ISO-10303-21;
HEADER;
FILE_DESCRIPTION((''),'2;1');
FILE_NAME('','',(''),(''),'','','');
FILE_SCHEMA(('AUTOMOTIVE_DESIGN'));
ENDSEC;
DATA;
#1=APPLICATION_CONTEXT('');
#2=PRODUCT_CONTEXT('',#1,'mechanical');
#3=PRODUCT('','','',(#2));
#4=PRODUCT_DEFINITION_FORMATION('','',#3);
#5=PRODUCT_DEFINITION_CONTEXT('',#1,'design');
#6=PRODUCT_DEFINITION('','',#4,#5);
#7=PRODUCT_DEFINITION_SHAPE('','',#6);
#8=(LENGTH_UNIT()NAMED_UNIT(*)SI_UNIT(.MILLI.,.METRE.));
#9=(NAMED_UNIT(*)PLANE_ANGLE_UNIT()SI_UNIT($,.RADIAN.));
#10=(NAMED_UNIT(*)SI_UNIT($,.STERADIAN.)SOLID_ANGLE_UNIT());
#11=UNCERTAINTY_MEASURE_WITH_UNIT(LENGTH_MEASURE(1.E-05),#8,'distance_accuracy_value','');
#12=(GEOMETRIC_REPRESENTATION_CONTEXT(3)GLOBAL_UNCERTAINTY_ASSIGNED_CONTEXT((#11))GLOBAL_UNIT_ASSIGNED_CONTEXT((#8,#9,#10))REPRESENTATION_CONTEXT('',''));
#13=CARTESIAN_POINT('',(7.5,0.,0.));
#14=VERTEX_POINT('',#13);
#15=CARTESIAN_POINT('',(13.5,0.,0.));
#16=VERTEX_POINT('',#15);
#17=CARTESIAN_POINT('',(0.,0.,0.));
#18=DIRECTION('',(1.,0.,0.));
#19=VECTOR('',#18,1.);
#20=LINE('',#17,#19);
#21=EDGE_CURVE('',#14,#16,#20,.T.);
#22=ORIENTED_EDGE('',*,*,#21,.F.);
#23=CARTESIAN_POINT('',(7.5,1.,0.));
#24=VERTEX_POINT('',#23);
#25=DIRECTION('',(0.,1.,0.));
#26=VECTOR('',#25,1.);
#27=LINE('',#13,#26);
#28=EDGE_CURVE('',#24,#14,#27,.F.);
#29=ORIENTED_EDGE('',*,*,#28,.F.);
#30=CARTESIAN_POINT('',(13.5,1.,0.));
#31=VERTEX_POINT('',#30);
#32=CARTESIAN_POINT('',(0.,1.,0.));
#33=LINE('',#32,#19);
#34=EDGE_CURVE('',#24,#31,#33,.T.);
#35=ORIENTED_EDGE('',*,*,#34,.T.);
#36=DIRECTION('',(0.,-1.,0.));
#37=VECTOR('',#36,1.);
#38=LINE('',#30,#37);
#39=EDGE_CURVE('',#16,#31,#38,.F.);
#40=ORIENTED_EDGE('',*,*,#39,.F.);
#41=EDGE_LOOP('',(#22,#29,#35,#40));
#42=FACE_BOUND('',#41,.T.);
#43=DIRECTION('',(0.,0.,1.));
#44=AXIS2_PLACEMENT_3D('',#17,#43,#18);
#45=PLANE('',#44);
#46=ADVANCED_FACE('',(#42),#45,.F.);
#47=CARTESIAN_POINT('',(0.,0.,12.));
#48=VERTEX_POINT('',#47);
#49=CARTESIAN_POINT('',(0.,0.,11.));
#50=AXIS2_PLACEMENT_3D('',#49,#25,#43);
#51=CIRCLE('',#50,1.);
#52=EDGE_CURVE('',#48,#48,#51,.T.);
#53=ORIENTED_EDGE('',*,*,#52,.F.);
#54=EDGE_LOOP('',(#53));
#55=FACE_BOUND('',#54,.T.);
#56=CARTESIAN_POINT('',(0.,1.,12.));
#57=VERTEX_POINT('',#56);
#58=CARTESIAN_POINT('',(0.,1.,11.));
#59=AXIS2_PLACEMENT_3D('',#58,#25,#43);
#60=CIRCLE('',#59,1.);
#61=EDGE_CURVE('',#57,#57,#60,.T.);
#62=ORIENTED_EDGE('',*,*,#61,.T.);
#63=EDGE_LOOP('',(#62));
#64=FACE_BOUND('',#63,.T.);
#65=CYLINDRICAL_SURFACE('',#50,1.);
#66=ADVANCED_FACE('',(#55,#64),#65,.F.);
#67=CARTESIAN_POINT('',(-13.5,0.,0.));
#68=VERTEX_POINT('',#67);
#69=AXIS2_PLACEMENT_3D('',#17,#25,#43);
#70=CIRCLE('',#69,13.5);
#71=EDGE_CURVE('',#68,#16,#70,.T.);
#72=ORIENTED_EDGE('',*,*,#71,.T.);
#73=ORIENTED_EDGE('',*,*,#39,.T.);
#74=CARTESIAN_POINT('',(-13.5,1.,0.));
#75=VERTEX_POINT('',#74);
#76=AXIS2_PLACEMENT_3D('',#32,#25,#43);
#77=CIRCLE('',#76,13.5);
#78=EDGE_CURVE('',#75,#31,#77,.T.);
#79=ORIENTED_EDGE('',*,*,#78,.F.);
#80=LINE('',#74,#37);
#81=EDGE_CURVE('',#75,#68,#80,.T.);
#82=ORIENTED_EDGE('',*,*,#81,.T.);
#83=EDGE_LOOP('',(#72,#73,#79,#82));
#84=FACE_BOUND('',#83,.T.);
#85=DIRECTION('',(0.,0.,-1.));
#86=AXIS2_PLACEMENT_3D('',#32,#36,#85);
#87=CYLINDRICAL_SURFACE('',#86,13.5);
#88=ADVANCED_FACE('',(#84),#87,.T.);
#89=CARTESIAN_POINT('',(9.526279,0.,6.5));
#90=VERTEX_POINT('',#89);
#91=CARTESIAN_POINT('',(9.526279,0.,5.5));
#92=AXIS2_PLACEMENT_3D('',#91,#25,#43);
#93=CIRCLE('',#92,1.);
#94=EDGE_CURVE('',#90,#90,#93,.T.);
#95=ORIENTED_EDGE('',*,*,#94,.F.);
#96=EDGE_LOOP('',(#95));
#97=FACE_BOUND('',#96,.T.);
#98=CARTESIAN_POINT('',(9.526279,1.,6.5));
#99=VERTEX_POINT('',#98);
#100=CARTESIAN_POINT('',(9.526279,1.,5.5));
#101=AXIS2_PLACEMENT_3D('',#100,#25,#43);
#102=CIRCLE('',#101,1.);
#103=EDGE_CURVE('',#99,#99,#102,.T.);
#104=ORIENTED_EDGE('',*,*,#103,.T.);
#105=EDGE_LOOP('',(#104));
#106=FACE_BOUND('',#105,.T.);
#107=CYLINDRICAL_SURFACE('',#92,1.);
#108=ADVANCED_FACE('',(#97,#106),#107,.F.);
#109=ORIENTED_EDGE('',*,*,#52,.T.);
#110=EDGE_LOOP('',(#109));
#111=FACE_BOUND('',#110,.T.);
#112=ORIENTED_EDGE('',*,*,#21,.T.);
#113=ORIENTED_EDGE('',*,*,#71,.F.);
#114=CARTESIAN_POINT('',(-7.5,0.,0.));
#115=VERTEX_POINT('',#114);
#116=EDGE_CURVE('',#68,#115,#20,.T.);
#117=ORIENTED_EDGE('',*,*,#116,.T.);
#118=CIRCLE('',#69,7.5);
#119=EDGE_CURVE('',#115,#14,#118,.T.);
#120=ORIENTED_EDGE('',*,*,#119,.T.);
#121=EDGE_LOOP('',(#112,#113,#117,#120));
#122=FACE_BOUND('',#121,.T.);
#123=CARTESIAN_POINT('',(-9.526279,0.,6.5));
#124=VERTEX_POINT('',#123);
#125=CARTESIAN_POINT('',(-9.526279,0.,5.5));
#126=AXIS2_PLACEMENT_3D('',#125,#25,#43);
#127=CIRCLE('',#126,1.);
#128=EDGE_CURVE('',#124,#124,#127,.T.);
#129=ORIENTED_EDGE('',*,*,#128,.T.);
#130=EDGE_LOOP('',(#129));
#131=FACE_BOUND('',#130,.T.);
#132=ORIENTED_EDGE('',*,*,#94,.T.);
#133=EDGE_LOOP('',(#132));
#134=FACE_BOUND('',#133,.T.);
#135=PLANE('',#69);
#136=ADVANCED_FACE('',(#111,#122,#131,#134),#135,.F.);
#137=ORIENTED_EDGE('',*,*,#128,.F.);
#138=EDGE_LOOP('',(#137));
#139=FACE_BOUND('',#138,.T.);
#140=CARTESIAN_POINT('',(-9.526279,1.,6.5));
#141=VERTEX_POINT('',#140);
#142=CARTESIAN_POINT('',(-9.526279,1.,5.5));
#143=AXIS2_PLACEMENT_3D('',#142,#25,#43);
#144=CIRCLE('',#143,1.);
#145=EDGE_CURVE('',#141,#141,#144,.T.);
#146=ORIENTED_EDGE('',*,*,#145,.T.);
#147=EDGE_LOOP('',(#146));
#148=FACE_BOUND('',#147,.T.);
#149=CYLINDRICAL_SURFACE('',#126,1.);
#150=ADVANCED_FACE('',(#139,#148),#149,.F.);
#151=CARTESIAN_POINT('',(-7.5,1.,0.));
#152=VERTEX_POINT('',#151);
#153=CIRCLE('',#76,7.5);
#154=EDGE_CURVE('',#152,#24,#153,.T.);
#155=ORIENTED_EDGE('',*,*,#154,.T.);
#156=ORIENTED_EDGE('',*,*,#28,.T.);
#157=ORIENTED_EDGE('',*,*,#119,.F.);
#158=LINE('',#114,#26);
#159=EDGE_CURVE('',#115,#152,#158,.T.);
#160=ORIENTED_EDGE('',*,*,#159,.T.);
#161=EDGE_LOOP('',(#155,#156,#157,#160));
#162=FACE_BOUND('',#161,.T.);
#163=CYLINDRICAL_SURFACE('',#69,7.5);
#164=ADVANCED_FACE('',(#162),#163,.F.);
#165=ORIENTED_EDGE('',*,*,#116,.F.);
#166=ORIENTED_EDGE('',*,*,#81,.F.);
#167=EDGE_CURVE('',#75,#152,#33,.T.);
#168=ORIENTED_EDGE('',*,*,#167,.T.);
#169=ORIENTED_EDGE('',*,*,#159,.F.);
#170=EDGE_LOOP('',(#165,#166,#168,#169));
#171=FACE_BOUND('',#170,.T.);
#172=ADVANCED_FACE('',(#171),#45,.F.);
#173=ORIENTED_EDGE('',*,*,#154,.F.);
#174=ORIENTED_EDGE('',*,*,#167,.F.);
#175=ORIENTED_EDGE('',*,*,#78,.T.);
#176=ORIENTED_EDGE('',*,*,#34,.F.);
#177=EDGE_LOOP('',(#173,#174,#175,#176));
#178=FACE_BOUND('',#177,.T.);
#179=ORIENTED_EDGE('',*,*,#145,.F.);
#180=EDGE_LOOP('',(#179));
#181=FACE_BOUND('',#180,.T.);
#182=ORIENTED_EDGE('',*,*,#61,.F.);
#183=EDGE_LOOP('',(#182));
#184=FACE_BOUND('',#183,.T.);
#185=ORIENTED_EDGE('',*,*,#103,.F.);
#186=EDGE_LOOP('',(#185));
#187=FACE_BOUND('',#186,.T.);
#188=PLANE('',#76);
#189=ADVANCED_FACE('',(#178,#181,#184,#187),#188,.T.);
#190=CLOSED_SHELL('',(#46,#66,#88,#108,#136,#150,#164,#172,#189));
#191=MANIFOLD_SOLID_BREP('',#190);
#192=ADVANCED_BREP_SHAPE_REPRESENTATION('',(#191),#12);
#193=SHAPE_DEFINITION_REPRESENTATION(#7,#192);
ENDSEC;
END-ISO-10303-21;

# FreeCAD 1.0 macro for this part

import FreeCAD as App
import Part
import Sketcher
Q = App.Units.Quantity

doc = App.newDocument("Part")
body = doc.addObject("PartDesign::Body", "Body")

# Sketch on XZ plane
sketch1 = body.newObject("Sketcher::SketchObject", "Sketch")
sketch1.AttachmentSupport = (doc.getObject("XZ_Plane"), [""])
sketch1.MapMode = "FlatFace"
sketch1.addGeometry(Part.Circle(App.Vector(0, 0, 0), App.Vector(0, 0, 1), 13.5), False)
sketch1.addConstraint([
    Sketcher.Constraint("Coincident", 0, 3, -1, 1),
    Sketcher.Constraint("Diameter", 0, Q("27 mm")),
])
pad1 = body.newObject("PartDesign::Pad", "Pad")
pad1.Profile = sketch1
pad1.Length = 1
pad1.Reversed = True

# Sketch on XZ plane
sketch2 = body.newObject("Sketcher::SketchObject", "Sketch001")
sketch2.AttachmentSupport = (doc.getObject("XZ_Plane"), [""])
sketch2.MapMode = "FlatFace"
sketch2.AttachmentOffset = App.Placement(App.Vector(0, 0, -1), App.Rotation())
sketch2.addGeometry([
    Part.Circle(App.Vector(0, -11, 0), App.Vector(0, 0, 1), 1),  # 0
    Part.Circle(App.Vector(9.526279, -5.5, 0), App.Vector(0, 0, 1), 1),  # 1
    Part.Circle(App.Vector(9.526279, 5.5, 0), App.Vector(0, 0, 1), 1),  # 2
    Part.Circle(App.Vector(0, 11, 0), App.Vector(0, 0, 1), 1),  # 3
    Part.Circle(App.Vector(-9.526279, 5.5, 0), App.Vector(0, 0, 1), 1),  # 4
    Part.Circle(App.Vector(-9.526279, -5.5, 0), App.Vector(0, 0, 1), 1),  # 5
], False)
sketch2.addConstraint([
    Sketcher.Constraint("Equal", 0, 1),
    Sketcher.Constraint("Equal", 1, 2),
    Sketcher.Constraint("Equal", 2, 3),
    Sketcher.Constraint("Equal", 3, 4),
    Sketcher.Constraint("Equal", 4, 5),
    Sketcher.Constraint("Symmetric", 0, 3, 3, 3, -1, 1),
    Sketcher.Constraint("Symmetric", 1, 3, 4, 3, -1, 1),
    Sketcher.Constraint("Symmetric", 2, 3, 5, 3, -1, 1),
    Sketcher.Constraint("Symmetric", 2, 3, 4, 3, -2),
    Sketcher.Constraint("PointOnObject", 0, 3, -2),
    Sketcher.Constraint("Diameter", 0, Q("2 mm")),
    Sketcher.Constraint("DistanceY", 0, 3, -1, 1, Q("11 mm")),
    Sketcher.Constraint("DistanceY", 1, 3, 2, 3, Q("11 mm")),
    Sketcher.Constraint("DistanceX", -1, 1, 1, 3, Q("9.526279 mm")),
])
pocket1 = body.newObject("PartDesign::Pocket", "Pocket")
pocket1.Profile = sketch2
pocket1.Type = "ThroughAll"
pocket1.Midplane = True

# Sketch on XZ plane
sketch3 = body.newObject("Sketcher::SketchObject", "Sketch002")
sketch3.AttachmentSupport = (doc.getObject("XZ_Plane"), [""])
sketch3.MapMode = "FlatFace"
sketch3.AttachmentOffset = App.Placement(App.Vector(0, 0, -1), App.Rotation())
sketch3.addGeometry(Part.Circle(App.Vector(0, 0, 0), App.Vector(0, 0, 1), 7.5), False)
sketch3.addConstraint([
    Sketcher.Constraint("Coincident", 0, 3, -1, 1),
    Sketcher.Constraint("Diameter", 0, Q("15 mm")),
])
pocket2 = body.newObject("PartDesign::Pocket", "Pocket001")
pocket2.Profile = sketch3
pocket2.Type = "ThroughAll"
pocket2.Midplane = True

# Sketch on XY plane
sketch4 = body.newObject("Sketcher::SketchObject", "Sketch003")
sketch4.AttachmentSupport = (doc.getObject("XY_Plane"), [""])
sketch4.MapMode = "FlatFace"
sketch4.addGeometry([
    Part.LineSegment(App.Vector(-36.753256, 32.311284, 0), App.Vector(-36.753256, -19.66799, 0)),
    Part.LineSegment(App.Vector(-36.753256, -19.66799, 0), App.Vector(29.120947, -19.66799, 0)),
    Part.LineSegment(App.Vector(29.120947, -19.66799, 0), App.Vector(29.120947, 32.311284, 0)),
    Part.LineSegment(App.Vector(29.120947, 32.311284, 0), App.Vector(-36.753256, 32.311284, 0)),
], False)
sketch4.addConstraint([
    Sketcher.Constraint("Coincident", 0, 2, 1, 1),
    Sketcher.Constraint("Coincident", 1, 2, 2, 1),
    Sketcher.Constraint("Coincident", 2, 2, 3, 1),
    Sketcher.Constraint("Coincident", 3, 2, 0, 1),
    Sketcher.Constraint("Vertical", 0),
    Sketcher.Constraint("Horizontal", 1),
    Sketcher.Constraint("Vertical", 2),
    Sketcher.Constraint("Horizontal", 3),
    Sketcher.Constraint("DistanceX", 1, 1, 1, 2, Q("65.874202 mm")),
    Sketcher.Constraint("DistanceY", 0, 2, 0, 1, Q("51.979274 mm")),
    Sketcher.Constraint("DistanceY", 0, 2, -1, 1, Q("19.66799 mm")),
    Sketcher.Constraint("DistanceX", 0, 2, -1, 1, Q("36.753256 mm")),
])
pocket3 = body.newObject("PartDesign::Pocket", "Pocket002")
pocket3.Profile = sketch4
pocket3.Type = "ThroughAll"

doc.recompute()
